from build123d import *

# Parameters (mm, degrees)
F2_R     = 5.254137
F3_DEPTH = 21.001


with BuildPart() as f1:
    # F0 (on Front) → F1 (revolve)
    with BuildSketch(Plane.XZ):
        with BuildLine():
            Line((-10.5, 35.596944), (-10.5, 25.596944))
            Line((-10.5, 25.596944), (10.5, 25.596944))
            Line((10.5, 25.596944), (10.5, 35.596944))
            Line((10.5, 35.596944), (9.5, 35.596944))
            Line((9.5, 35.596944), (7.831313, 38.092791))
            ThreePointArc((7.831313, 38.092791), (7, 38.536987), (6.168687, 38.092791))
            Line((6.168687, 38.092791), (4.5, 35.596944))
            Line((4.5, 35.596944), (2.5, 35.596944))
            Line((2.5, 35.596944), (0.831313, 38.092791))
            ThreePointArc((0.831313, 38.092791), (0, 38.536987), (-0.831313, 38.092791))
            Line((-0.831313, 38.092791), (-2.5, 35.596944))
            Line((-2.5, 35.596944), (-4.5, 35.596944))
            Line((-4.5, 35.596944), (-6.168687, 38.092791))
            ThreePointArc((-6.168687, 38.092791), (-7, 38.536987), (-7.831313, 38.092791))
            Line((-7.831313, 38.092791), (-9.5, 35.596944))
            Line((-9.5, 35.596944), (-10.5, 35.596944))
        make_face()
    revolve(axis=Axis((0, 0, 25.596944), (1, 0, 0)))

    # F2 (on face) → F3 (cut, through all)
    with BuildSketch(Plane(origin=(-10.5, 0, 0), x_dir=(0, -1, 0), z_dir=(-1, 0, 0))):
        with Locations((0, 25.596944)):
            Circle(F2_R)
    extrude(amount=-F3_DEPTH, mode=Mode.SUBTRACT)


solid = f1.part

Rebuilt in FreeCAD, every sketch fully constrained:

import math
import FreeCAD as App
import Part
import Sketcher

V = App.Vector
Q = App.Units.Quantity

doc = App.newDocument("Part")
body = doc.addObject("PartDesign::Body", "Body")

# Sketch on XZ plane
sketch1 = doc.addObject("Sketcher::SketchObject", "Sketch")
body.addObject(sketch1)
sketch1.AttachmentSupport = (doc.XZ_Plane, [""])
sketch1.MapMode = "FlatFace"
sketch1.addGeometry([
    Part.LineSegment(V(-10.5, 35.6, 0), V(-10.5, 25.6, 0)),  # 0
    Part.LineSegment(V(-10.5, 25.6, 0), V(10.5, 25.6, 0)),  # 1
    Part.LineSegment(V(10.5, 25.6, 0), V(10.5, 35.6, 0)),  # 2
    Part.LineSegment(V(10.5, 35.6, 0), V(9.5, 35.6, 0)),  # 3
    Part.LineSegment(V(9.5, 35.6, 0), V(7.8, 38.1, 0)),  # 4
    Part.ArcOfCircle(Part.Circle(V(7, 37.5, 0), V(0, 0, 1), 1), math.radians(34), math.radians(146)),  # 5
    Part.LineSegment(V(6.2, 38.1, 0), V(4.5, 35.6, 0)),  # 6
    Part.LineSegment(V(4.5, 35.6, 0), V(2.5, 35.6, 0)),  # 7
    Part.LineSegment(V(2.5, 35.6, 0), V(0.8, 38.1, 0)),  # 8
    Part.ArcOfCircle(Part.Circle(V(0, 37.5, 0), V(0, 0, 1), 1), math.radians(34), math.radians(146)),  # 9
    Part.LineSegment(V(-0.8, 38.1, 0), V(-2.5, 35.6, 0)),  # 10
    Part.LineSegment(V(-2.5, 35.6, 0), V(-4.5, 35.6, 0)),  # 11
    Part.LineSegment(V(-4.5, 35.6, 0), V(-6.2, 38.1, 0)),  # 12
    Part.ArcOfCircle(Part.Circle(V(-7, 37.5, 0), V(0, 0, 1), 1), math.radians(34), math.radians(146)),  # 13
    Part.LineSegment(V(-7.8, 38.1, 0), V(-9.5, 35.6, 0)),  # 14
    Part.LineSegment(V(-9.5, 35.6, 0), V(-10.5, 35.6, 0)),  # 15
], False)
sketch1.addGeometry(Part.LineSegment(V(-10.5, 25.6, 0), V(10.5, 25.6, 0)), True)  # axis
sketch1.addConstraint([
    Sketcher.Constraint("Coincident", 0, 2, 1, 1),
    Sketcher.Constraint("Coincident", 1, 2, 2, 1),
    Sketcher.Constraint("Coincident", 2, 2, 3, 1),
    Sketcher.Constraint("Coincident", 3, 2, 4, 1),
    Sketcher.Constraint("Tangent", 4, 2, 5, 1),
    Sketcher.Constraint("Tangent", 5, 2, 6, 1),
    Sketcher.Constraint("Coincident", 6, 2, 7, 1),
    Sketcher.Constraint("Coincident", 7, 2, 8, 1),
    Sketcher.Constraint("Tangent", 8, 2, 9, 1),
    Sketcher.Constraint("Tangent", 9, 2, 10, 1),
    Sketcher.Constraint("Coincident", 10, 2, 11, 1),
    Sketcher.Constraint("Coincident", 11, 2, 12, 1),
    Sketcher.Constraint("Tangent", 12, 2, 13, 1),
    Sketcher.Constraint("Tangent", 13, 2, 14, 1),
    Sketcher.Constraint("Coincident", 14, 2, 15, 1),
    Sketcher.Constraint("Coincident", 15, 2, 0, 1),
    Sketcher.Constraint("Vertical", 0),
    Sketcher.Constraint("Horizontal", 1),
    Sketcher.Constraint("Vertical", 2),
    Sketcher.Constraint("Horizontal", 3),
    Sketcher.Constraint("Horizontal", 7),
    Sketcher.Constraint("Horizontal", 11),
    Sketcher.Constraint("Horizontal", 15),
    Sketcher.Constraint("Horizontal", 16),
    Sketcher.Constraint("Coincident", 16, 1, 0, 2),
    Sketcher.Constraint("Equal", 5, 9),
    Sketcher.Constraint("Equal", 9, 13),
    Sketcher.Constraint("Symmetric", 5, 3, 13, 3, -2),
    Sketcher.Constraint("Symmetric", 8, 2, 9, 2, -2),
    Sketcher.Constraint("Symmetric", 6, 2, 11, 2, -2),
    Sketcher.Constraint("Symmetric", 3, 2, 14, 2, -2),
    Sketcher.Constraint("Parallel", 4, 8),
    Sketcher.Constraint("Parallel", 6, 10),
    Sketcher.Constraint("Horizontal", 5, 3, 9, 3),
    Sketcher.Constraint("Horizontal", 3, 2, 6, 2),
    Sketcher.Constraint("Vertical", 2, 2, 16, 2),
    Sketcher.Constraint("Equal", 3, 15),
    Sketcher.Constraint("Radius", 5, Q("0.999999 mm")),
    Sketcher.Constraint("DistanceX", 1, 1, 1, 2, Q("21 mm")),
    Sketcher.Constraint("DistanceX", 3, 2, 3, 1, Q("1 mm")),
    Sketcher.Constraint("DistanceX", 7, 2, 7, 1, Q("2 mm")),
    Sketcher.Constraint("DistanceY", 0, 2, 0, 1, Q("10 mm")),
    Sketcher.Constraint("DistanceY", -1, 1, 4, 2, Q("38.092791 mm")),
    Sketcher.Constraint("Distance", 4, Q("3.002294 mm")),
])
revolution = doc.addObject("PartDesign::Revolution", "Revolution")
body.addObject(revolution)
revolution.Profile = sketch1
revolution.ReferenceAxis = (sketch1, ["Axis0"])
revolution.Angle = 360

# Sketch on YZ plane
sketch2 = doc.addObject("Sketcher::SketchObject", "Sketch001")
body.addObject(sketch2)
sketch2.AttachmentSupport = (doc.YZ_Plane, [""])
sketch2.MapMode = "FlatFace"
sketch2.AttachmentOffset = App.Placement(V(0, 0, -10.5), App.Rotation())
sketch2.addGeometry(Part.Circle(V(0, 26, 0), V(0, 0, 1), 5), False)
sketch2.addConstraint([
    Sketcher.Constraint("PointOnObject", 0, 3, -2),
    Sketcher.Constraint("Diameter", 0, Q("10.508274 mm")),
    Sketcher.Constraint("DistanceY", -1, 1, 0, 3, Q("25.596944 mm")),
])
pocket1 = doc.addObject("PartDesign::Pocket", "Pocket")
body.addObject(pocket1)
pocket1.Profile = sketch2
pocket1.Type = "ThroughAll"
pocket1.Reversed = True

doc.recompute()
